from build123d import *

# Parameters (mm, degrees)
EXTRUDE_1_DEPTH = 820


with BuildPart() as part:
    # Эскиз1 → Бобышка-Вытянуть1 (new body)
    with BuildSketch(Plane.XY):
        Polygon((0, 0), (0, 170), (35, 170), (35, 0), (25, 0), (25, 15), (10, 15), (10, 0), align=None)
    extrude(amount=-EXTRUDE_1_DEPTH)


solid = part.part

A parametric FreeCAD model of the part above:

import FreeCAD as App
import Part
import Sketcher
from FreeCAD import Vector
Q = App.Units.Quantity

doc = App.newDocument("Part")
body = doc.addObject("PartDesign::Body", "Body")

sketch1 = body.newObject("Sketcher::SketchObject", "Sketch")
sketch1.AttachmentSupport = (doc.getObject("XY_Plane"), [""])
sketch1.MapMode = "FlatFace"
sketch1.addGeometry([
    Part.LineSegment(Vector(0, 170, 0), Vector(0, 0, 0)),
    Part.LineSegment(Vector(0, 0, 0), Vector(10, 0, 0)),
    Part.LineSegment(Vector(10, 0, 0), Vector(10, 15, 0)),
    Part.LineSegment(Vector(10, 15, 0), Vector(25, 15, 0)),
    Part.LineSegment(Vector(25, 15, 0), Vector(25, 0, 0)),
    Part.LineSegment(Vector(25, 0, 0), Vector(35, 0, 0)),
    Part.LineSegment(Vector(35, 0, 0), Vector(35, 170, 0)),
    Part.LineSegment(Vector(35, 170, 0), Vector(0, 170, 0)),
], False)
sketch1.addConstraint([
    Sketcher.Constraint("Coincident", 0, 2, 1, 1),
    Sketcher.Constraint("Coincident", 1, 2, 2, 1),
    Sketcher.Constraint("Coincident", 2, 2, 3, 1),
    Sketcher.Constraint("Coincident", 3, 2, 4, 1),
    Sketcher.Constraint("Coincident", 4, 2, 5, 1),
    Sketcher.Constraint("Coincident", 5, 2, 6, 1),
    Sketcher.Constraint("Coincident", 6, 2, 7, 1),
    Sketcher.Constraint("Coincident", 7, 2, 0, 1),
    Sketcher.Constraint("Vertical", 0),
    Sketcher.Constraint("Horizontal", 1),
    Sketcher.Constraint("Vertical", 2),
    Sketcher.Constraint("Horizontal", 3),
    Sketcher.Constraint("Vertical", 4),
    Sketcher.Constraint("Horizontal", 5),
    Sketcher.Constraint("Vertical", 6),
    Sketcher.Constraint("Horizontal", 7),
    Sketcher.Constraint("Coincident", 0, 2, -1, 1),
    Sketcher.Constraint("PointOnObject", 4, 2, -1),
    Sketcher.Constraint("Equal", 1, 5),
    Sketcher.Constraint("Equal", 3, 2),
    Sketcher.Constraint("DistanceX", 1, 1, 1, 2, Q("10 mm")),
    Sketcher.Constraint("DistanceX", 3, 1, 3, 2, Q("15 mm")),
    Sketcher.Constraint("DistanceY", 0, 2, 0, 1, Q("170 mm")),
])
pad1 = body.newObject("PartDesign::Pad", "Pad")
pad1.Profile = sketch1
pad1.Length = 820
pad1.Reversed = True

doc.recompute()
